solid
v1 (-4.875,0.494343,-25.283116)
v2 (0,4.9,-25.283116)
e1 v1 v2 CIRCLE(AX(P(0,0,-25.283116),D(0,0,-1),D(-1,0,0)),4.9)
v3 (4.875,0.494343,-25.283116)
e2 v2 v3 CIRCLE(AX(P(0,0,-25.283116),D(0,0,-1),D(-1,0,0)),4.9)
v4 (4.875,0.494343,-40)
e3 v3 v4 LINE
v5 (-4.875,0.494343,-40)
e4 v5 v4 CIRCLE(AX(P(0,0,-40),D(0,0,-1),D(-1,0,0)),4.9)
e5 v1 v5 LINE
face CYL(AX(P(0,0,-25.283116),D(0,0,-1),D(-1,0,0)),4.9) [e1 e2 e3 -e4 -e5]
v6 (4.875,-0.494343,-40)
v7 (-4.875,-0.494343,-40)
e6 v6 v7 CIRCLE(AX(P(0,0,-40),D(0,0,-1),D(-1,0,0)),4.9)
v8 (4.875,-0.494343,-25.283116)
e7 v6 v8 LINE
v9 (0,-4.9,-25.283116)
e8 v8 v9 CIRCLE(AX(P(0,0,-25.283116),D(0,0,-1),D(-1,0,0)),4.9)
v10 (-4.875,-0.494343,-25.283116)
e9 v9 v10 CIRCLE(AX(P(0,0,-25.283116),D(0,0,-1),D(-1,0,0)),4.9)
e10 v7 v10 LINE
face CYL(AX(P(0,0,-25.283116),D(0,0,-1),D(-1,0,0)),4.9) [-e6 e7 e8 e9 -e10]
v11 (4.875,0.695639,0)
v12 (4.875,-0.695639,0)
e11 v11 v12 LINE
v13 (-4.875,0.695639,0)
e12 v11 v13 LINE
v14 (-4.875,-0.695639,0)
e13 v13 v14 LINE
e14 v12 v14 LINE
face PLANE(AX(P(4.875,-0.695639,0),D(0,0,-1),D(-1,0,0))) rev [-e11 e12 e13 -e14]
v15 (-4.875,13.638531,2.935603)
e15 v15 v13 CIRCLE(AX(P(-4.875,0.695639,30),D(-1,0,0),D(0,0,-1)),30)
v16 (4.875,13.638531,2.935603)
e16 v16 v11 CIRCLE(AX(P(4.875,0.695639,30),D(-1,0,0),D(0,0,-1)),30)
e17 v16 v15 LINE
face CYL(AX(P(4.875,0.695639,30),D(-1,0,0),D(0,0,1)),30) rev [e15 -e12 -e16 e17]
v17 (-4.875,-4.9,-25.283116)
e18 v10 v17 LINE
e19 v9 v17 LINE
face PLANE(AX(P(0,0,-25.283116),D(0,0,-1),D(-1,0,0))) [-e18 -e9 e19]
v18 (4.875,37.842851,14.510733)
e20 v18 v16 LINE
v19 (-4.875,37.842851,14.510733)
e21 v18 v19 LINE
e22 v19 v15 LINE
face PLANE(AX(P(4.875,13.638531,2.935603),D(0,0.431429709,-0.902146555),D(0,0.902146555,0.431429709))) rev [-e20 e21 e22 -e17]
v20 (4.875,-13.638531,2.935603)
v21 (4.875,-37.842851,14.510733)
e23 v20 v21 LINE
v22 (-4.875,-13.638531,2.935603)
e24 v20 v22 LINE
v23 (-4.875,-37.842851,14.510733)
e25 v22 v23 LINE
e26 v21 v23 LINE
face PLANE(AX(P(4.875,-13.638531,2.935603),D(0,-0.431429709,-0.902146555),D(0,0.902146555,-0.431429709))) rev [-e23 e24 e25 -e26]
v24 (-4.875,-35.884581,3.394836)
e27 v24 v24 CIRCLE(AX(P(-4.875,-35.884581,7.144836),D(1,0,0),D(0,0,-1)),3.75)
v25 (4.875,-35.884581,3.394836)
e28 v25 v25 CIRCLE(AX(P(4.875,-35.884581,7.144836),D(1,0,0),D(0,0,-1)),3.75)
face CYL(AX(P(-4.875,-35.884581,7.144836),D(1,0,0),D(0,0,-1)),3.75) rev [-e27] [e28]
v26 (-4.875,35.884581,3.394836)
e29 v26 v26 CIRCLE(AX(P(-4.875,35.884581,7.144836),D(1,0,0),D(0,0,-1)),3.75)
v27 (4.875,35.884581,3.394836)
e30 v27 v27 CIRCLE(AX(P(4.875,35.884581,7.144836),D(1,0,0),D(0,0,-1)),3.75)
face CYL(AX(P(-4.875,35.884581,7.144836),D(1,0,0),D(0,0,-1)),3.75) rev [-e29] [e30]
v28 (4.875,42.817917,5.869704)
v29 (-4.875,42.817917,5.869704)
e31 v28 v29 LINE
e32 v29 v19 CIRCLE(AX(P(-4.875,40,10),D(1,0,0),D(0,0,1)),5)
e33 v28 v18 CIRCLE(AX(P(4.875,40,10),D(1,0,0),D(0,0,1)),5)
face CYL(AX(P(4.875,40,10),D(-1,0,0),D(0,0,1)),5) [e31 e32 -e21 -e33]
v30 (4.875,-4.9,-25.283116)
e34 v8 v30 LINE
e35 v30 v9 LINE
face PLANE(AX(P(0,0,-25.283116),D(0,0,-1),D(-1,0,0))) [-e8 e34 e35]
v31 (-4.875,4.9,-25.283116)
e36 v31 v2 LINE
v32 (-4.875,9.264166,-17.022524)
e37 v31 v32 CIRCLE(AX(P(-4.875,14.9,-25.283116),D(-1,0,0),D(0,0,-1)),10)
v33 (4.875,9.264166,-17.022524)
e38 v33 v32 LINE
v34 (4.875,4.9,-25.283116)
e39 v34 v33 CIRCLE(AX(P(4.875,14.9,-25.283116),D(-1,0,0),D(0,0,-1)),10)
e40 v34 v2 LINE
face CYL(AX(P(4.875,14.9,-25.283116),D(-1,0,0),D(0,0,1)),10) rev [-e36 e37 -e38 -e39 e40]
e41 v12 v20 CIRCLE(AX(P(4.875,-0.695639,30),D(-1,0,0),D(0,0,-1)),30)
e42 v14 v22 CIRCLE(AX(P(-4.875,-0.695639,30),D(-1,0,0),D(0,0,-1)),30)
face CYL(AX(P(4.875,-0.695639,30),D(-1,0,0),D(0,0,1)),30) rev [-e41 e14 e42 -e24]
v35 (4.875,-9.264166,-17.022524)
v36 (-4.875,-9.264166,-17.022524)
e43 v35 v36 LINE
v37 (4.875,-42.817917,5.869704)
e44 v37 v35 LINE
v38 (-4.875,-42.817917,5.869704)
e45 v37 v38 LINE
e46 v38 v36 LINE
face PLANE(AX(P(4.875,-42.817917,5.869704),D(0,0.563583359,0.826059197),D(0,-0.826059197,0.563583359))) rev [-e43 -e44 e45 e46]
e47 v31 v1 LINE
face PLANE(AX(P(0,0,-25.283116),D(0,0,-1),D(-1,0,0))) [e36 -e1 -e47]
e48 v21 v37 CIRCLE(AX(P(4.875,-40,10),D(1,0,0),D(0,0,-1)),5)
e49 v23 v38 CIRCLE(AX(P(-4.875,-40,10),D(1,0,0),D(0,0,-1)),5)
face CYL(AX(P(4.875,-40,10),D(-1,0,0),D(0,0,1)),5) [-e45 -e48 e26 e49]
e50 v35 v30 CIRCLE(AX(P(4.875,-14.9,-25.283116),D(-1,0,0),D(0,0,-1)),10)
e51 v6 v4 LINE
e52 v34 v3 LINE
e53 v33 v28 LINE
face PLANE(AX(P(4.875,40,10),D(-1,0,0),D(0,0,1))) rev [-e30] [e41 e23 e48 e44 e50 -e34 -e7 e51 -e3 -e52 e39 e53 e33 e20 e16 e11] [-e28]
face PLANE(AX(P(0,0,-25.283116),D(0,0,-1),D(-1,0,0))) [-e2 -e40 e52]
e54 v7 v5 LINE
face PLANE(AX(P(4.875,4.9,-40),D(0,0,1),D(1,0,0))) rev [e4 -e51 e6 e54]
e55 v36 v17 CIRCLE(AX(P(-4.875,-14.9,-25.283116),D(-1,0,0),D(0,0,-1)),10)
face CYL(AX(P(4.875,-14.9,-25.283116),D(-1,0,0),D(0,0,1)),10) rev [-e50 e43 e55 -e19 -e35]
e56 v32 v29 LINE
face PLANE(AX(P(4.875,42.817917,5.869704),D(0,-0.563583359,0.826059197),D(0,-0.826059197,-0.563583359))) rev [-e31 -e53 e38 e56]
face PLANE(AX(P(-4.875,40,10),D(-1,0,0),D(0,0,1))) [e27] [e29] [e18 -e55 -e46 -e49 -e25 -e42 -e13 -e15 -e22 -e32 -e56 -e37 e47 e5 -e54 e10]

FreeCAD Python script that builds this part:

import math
import FreeCAD as App
import Part
import Sketcher
Q = App.Units.Quantity


def add_polygon(sketch, points):
    """Adds a closed chain of lines whose ends are joined by coincident constraints."""
    first, n = sketch.GeometryCount, len(points)
    for a, b in zip(points, points[1:] + points[:1]):
        sketch.addGeometry(Part.LineSegment(App.Vector(*a, 0), App.Vector(*b, 0)), False)
    for i in range(n):
        sketch.addConstraint(Sketcher.Constraint("Coincident", first + i, 2, first + (i + 1) % n, 1))

doc = App.newDocument("Part")
params = doc.addObject("Spreadsheet::Sheet", "Params")
for row, (alias, value) in enumerate([
    ("sketch1_radius", "30 mm"),
    ("sketch1_radius2", "5 mm"),
    ("sketch1_radius3", "10 mm"),
    ("sketch1_width", "9.8 mm"),
    ("pad1_length", "9.75 mm"),
    ("sketch2_diameter", "9.8 mm"),
    ("pocket1_length", "14.716884 mm"),
    ("sketch3_diameter", "7.5 mm"),
    ("pocket2_length", "9.75 mm"),
], start=1):
    params.set(f"A{row}", alias)
    params.set(f"B{row}", "=" + value)
    params.setAlias(f"B{row}", alias)

body = doc.addObject("PartDesign::Body", "Body")

sketch1 = doc.addObject("Sketcher::SketchObject", "Sketch")
body.addObject(sketch1)
sketch1.AttachmentSupport = (doc.YZ_Plane, [""])
sketch1.MapMode = "FlatFace"
sketch1.addGeometry(Part.LineSegment(App.Vector(0.7, 0, 0), App.Vector(-0.7, 0, 0)), False)
sketch1.addGeometry(Part.ArcOfCircle(Part.Circle(App.Vector(-0.7, 30, 0), App.Vector(0, 0, 1), 30), math.radians(-116), math.radians(-90)), False)
sketch1.addGeometry(Part.LineSegment(App.Vector(-13.6, 2.9, 0), App.Vector(-37.8, 14.5, 0)), False)
sketch1.addGeometry(Part.ArcOfCircle(Part.Circle(App.Vector(-40, 10, 0), App.Vector(0, 0, 1), 5), math.radians(64), math.radians(236)), False)
sketch1.addGeometry(Part.LineSegment(App.Vector(-42.8, 5.9, 0), App.Vector(-9.3, -17, 0)), False)
sketch1.addGeometry(Part.ArcOfCircle(Part.Circle(App.Vector(-14.9, -25.3, 0), App.Vector(0, 0, 1), 10), math.radians(0), math.radians(56)), False)
sketch1.addGeometry(Part.LineSegment(App.Vector(-4.9, -25.3, 0), App.Vector(-4.9, -40, 0)), False)
sketch1.addGeometry(Part.LineSegment(App.Vector(-4.9, -40, 0), App.Vector(4.9, -40, 0)), False)
sketch1.addGeometry(Part.LineSegment(App.Vector(4.9, -40, 0), App.Vector(4.9, -25.3, 0)), False)
sketch1.addGeometry(Part.ArcOfCircle(Part.Circle(App.Vector(14.9, -25.3, 0), App.Vector(0, 0, 1), 10), math.radians(124), math.radians(180)), False)
sketch1.addGeometry(Part.LineSegment(App.Vector(9.3, -17, 0), App.Vector(42.8, 5.9, 0)), False)
sketch1.addGeometry(Part.ArcOfCircle(Part.Circle(App.Vector(40, 10, 0), App.Vector(0, 0, 1), 5), math.radians(-56), math.radians(116)), False)
sketch1.addGeometry(Part.LineSegment(App.Vector(37.8, 14.5, 0), App.Vector(13.6, 2.9, 0)), False)
sketch1.addGeometry(Part.ArcOfCircle(Part.Circle(App.Vector(0.7, 30, 0), App.Vector(0, 0, 1), 30), math.radians(-90), math.radians(-64)), False)
sketch1.addConstraint(Sketcher.Constraint("Tangent", 0, 2, 1, 2))
sketch1.addConstraint(Sketcher.Constraint("Tangent", 1, 1, 2, 1))
sketch1.addConstraint(Sketcher.Constraint("Tangent", 2, 2, 3, 1))
sketch1.addConstraint(Sketcher.Constraint("Tangent", 3, 2, 4, 1))
sketch1.addConstraint(Sketcher.Constraint("Tangent", 4, 2, 5, 2))
sketch1.addConstraint(Sketcher.Constraint("Tangent", 5, 1, 6, 1))
sketch1.addConstraint(Sketcher.Constraint("Coincident", 6, 2, 7, 1))
sketch1.addConstraint(Sketcher.Constraint("Coincident", 7, 2, 8, 1))
sketch1.addConstraint(Sketcher.Constraint("Tangent", 8, 2, 9, 2))
sketch1.addConstraint(Sketcher.Constraint("Tangent", 9, 1, 10, 1))
sketch1.addConstraint(Sketcher.Constraint("Tangent", 10, 2, 11, 1))
sketch1.addConstraint(Sketcher.Constraint("Tangent", 11, 2, 12, 1))
sketch1.addConstraint(Sketcher.Constraint("Tangent", 12, 2, 13, 2))
sketch1.addConstraint(Sketcher.Constraint("Tangent", 13, 1, 0, 1))
sketch1.addConstraint(Sketcher.Constraint("Horizontal", 0))
sketch1.addConstraint(Sketcher.Constraint("Vertical", 6))
sketch1.addConstraint(Sketcher.Constraint("Horizontal", 7))
sketch1.addConstraint(Sketcher.Constraint("Vertical", 8))
sketch1.addConstraint(Sketcher.Constraint("Equal", 5, 9))
sketch1.addConstraint(Sketcher.Constraint("Equal", 3, 11))
sketch1.addConstraint(Sketcher.Constraint("Equal", 1, 13))
sketch1.addConstraint(Sketcher.Constraint("Symmetric", 0, 2, 13, 1, -1, 1))
sketch1.addConstraint(Sketcher.Constraint("Symmetric", 5, 3, 9, 3, -2))
sketch1.addConstraint(Sketcher.Constraint("Symmetric", 3, 3, 11, 3, -2))
sketch1.addConstraint(Sketcher.Constraint("Radius", 1, Q("30 mm")))
sketch1.addConstraint(Sketcher.Constraint("Radius", 3, Q("5 mm")))
sketch1.addConstraint(Sketcher.Constraint("Radius", 5, Q("10 mm")))
sketch1.addConstraint(Sketcher.Constraint("DistanceX", 7, 1, 7, 2, Q("9.8 mm")))
sketch1.addConstraint(Sketcher.Constraint("DistanceX", 3, 3, -1, 1, Q("40 mm")))
sketch1.addConstraint(Sketcher.Constraint("DistanceY", -1, 1, 3, 3, Q("10 mm")))
sketch1.addConstraint(Sketcher.Constraint("DistanceY", 6, 2, -1, 1, Q("40 mm")))
sketch1.addConstraint(Sketcher.Constraint("Distance", 2, Q("26.829699 mm")))
sketch1.addConstraint(Sketcher.Constraint("DistanceY", 6, 2, 6, 1, Q("14.716884 mm")))
sketch1.setExpression("Constraints[24]", "Params.sketch1_radius")
sketch1.setExpression("Constraints[25]", "Params.sketch1_radius2")
sketch1.setExpression("Constraints[26]", "Params.sketch1_radius3")
sketch1.setExpression("Constraints[27]", "Params.sketch1_width")
pad1 = doc.addObject("PartDesign::Pad", "Pad")
body.addObject(pad1)
pad1.Profile = sketch1
pad1.setExpression("Length", "Params.pad1_length")
pad1.Midplane = True

sketch2 = doc.addObject("Sketcher::SketchObject", "Sketch001")
body.addObject(sketch2)
sketch2.AttachmentSupport = (doc.XY_Plane, [""])
sketch2.MapMode = "FlatFace"
sketch2.AttachmentOffset = App.Placement(App.Vector(0, 0, -40), App.Rotation())
add_polygon(sketch2, [(16.5, 56.6), (16.5, -56.6), (-16.5, -56.6), (-16.5, 56.6)])
sketch2.addGeometry(Part.Circle(App.Vector(0, 0, 0), App.Vector(0, 0, 1), 4.9), False)
sketch2.addConstraint(Sketcher.Constraint("Vertical", 0))
sketch2.addConstraint(Sketcher.Constraint("Horizontal", 1))
sketch2.addConstraint(Sketcher.Constraint("Vertical", 2))
sketch2.addConstraint(Sketcher.Constraint("Horizontal", 3))
sketch2.addConstraint(Sketcher.Constraint("Coincident", 4, 3, -1, 1))
sketch2.addConstraint(Sketcher.Constraint("Symmetric", 0, 2, 2, 2, -1, 1))
sketch2.addConstraint(Sketcher.Constraint("Diameter", 4, Q("9.8 mm")))
sketch2.addConstraint(Sketcher.Constraint("DistanceX", 1, 2, 1, 1, Q("32.934 mm")))
sketch2.addConstraint(Sketcher.Constraint("DistanceY", 0, 2, 0, 1, Q("113.184 mm")))
sketch2.setExpression("Constraints[10]", "Params.sketch2_diameter")
pocket1 = doc.addObject("PartDesign::Pocket", "Pocket")
body.addObject(pocket1)
pocket1.Profile = sketch2
pocket1.setExpression("Length", "Params.pocket1_length")
pocket1.Reversed = True

sketch3 = doc.addObject("Sketcher::SketchObject", "Sketch002")
body.addObject(sketch3)
sketch3.AttachmentSupport = (doc.YZ_Plane, [""])
sketch3.MapMode = "FlatFace"
sketch3.AttachmentOffset = App.Placement(App.Vector(0, 0, 4.875), App.Rotation())
sketch3.addGeometry(Part.Circle(App.Vector(35.9, 7.1, 0), App.Vector(0, 0, 1), 3.8), False)
sketch3.addGeometry(Part.Circle(App.Vector(-35.9, 7.1, 0), App.Vector(0, 0, 1), 3.8), False)
sketch3.addConstraint(Sketcher.Constraint("Equal", 0, 1))
sketch3.addConstraint(Sketcher.Constraint("Symmetric", 0, 3, 1, 3, -2))
sketch3.addConstraint(Sketcher.Constraint("Diameter", 0, Q("7.5 mm")))
sketch3.addConstraint(Sketcher.Constraint("DistanceX", -1, 1, 0, 3, Q("35.884581 mm")))
sketch3.addConstraint(Sketcher.Constraint("DistanceY", -1, 1, 0, 3, Q("7.144836 mm")))
sketch3.setExpression("Constraints[2]", "Params.sketch3_diameter")
pocket2 = doc.addObject("PartDesign::Pocket", "Pocket001")
body.addObject(pocket2)
pocket2.Profile = sketch3
pocket2.setExpression("Length", "Params.pocket2_length")

doc.recompute()
